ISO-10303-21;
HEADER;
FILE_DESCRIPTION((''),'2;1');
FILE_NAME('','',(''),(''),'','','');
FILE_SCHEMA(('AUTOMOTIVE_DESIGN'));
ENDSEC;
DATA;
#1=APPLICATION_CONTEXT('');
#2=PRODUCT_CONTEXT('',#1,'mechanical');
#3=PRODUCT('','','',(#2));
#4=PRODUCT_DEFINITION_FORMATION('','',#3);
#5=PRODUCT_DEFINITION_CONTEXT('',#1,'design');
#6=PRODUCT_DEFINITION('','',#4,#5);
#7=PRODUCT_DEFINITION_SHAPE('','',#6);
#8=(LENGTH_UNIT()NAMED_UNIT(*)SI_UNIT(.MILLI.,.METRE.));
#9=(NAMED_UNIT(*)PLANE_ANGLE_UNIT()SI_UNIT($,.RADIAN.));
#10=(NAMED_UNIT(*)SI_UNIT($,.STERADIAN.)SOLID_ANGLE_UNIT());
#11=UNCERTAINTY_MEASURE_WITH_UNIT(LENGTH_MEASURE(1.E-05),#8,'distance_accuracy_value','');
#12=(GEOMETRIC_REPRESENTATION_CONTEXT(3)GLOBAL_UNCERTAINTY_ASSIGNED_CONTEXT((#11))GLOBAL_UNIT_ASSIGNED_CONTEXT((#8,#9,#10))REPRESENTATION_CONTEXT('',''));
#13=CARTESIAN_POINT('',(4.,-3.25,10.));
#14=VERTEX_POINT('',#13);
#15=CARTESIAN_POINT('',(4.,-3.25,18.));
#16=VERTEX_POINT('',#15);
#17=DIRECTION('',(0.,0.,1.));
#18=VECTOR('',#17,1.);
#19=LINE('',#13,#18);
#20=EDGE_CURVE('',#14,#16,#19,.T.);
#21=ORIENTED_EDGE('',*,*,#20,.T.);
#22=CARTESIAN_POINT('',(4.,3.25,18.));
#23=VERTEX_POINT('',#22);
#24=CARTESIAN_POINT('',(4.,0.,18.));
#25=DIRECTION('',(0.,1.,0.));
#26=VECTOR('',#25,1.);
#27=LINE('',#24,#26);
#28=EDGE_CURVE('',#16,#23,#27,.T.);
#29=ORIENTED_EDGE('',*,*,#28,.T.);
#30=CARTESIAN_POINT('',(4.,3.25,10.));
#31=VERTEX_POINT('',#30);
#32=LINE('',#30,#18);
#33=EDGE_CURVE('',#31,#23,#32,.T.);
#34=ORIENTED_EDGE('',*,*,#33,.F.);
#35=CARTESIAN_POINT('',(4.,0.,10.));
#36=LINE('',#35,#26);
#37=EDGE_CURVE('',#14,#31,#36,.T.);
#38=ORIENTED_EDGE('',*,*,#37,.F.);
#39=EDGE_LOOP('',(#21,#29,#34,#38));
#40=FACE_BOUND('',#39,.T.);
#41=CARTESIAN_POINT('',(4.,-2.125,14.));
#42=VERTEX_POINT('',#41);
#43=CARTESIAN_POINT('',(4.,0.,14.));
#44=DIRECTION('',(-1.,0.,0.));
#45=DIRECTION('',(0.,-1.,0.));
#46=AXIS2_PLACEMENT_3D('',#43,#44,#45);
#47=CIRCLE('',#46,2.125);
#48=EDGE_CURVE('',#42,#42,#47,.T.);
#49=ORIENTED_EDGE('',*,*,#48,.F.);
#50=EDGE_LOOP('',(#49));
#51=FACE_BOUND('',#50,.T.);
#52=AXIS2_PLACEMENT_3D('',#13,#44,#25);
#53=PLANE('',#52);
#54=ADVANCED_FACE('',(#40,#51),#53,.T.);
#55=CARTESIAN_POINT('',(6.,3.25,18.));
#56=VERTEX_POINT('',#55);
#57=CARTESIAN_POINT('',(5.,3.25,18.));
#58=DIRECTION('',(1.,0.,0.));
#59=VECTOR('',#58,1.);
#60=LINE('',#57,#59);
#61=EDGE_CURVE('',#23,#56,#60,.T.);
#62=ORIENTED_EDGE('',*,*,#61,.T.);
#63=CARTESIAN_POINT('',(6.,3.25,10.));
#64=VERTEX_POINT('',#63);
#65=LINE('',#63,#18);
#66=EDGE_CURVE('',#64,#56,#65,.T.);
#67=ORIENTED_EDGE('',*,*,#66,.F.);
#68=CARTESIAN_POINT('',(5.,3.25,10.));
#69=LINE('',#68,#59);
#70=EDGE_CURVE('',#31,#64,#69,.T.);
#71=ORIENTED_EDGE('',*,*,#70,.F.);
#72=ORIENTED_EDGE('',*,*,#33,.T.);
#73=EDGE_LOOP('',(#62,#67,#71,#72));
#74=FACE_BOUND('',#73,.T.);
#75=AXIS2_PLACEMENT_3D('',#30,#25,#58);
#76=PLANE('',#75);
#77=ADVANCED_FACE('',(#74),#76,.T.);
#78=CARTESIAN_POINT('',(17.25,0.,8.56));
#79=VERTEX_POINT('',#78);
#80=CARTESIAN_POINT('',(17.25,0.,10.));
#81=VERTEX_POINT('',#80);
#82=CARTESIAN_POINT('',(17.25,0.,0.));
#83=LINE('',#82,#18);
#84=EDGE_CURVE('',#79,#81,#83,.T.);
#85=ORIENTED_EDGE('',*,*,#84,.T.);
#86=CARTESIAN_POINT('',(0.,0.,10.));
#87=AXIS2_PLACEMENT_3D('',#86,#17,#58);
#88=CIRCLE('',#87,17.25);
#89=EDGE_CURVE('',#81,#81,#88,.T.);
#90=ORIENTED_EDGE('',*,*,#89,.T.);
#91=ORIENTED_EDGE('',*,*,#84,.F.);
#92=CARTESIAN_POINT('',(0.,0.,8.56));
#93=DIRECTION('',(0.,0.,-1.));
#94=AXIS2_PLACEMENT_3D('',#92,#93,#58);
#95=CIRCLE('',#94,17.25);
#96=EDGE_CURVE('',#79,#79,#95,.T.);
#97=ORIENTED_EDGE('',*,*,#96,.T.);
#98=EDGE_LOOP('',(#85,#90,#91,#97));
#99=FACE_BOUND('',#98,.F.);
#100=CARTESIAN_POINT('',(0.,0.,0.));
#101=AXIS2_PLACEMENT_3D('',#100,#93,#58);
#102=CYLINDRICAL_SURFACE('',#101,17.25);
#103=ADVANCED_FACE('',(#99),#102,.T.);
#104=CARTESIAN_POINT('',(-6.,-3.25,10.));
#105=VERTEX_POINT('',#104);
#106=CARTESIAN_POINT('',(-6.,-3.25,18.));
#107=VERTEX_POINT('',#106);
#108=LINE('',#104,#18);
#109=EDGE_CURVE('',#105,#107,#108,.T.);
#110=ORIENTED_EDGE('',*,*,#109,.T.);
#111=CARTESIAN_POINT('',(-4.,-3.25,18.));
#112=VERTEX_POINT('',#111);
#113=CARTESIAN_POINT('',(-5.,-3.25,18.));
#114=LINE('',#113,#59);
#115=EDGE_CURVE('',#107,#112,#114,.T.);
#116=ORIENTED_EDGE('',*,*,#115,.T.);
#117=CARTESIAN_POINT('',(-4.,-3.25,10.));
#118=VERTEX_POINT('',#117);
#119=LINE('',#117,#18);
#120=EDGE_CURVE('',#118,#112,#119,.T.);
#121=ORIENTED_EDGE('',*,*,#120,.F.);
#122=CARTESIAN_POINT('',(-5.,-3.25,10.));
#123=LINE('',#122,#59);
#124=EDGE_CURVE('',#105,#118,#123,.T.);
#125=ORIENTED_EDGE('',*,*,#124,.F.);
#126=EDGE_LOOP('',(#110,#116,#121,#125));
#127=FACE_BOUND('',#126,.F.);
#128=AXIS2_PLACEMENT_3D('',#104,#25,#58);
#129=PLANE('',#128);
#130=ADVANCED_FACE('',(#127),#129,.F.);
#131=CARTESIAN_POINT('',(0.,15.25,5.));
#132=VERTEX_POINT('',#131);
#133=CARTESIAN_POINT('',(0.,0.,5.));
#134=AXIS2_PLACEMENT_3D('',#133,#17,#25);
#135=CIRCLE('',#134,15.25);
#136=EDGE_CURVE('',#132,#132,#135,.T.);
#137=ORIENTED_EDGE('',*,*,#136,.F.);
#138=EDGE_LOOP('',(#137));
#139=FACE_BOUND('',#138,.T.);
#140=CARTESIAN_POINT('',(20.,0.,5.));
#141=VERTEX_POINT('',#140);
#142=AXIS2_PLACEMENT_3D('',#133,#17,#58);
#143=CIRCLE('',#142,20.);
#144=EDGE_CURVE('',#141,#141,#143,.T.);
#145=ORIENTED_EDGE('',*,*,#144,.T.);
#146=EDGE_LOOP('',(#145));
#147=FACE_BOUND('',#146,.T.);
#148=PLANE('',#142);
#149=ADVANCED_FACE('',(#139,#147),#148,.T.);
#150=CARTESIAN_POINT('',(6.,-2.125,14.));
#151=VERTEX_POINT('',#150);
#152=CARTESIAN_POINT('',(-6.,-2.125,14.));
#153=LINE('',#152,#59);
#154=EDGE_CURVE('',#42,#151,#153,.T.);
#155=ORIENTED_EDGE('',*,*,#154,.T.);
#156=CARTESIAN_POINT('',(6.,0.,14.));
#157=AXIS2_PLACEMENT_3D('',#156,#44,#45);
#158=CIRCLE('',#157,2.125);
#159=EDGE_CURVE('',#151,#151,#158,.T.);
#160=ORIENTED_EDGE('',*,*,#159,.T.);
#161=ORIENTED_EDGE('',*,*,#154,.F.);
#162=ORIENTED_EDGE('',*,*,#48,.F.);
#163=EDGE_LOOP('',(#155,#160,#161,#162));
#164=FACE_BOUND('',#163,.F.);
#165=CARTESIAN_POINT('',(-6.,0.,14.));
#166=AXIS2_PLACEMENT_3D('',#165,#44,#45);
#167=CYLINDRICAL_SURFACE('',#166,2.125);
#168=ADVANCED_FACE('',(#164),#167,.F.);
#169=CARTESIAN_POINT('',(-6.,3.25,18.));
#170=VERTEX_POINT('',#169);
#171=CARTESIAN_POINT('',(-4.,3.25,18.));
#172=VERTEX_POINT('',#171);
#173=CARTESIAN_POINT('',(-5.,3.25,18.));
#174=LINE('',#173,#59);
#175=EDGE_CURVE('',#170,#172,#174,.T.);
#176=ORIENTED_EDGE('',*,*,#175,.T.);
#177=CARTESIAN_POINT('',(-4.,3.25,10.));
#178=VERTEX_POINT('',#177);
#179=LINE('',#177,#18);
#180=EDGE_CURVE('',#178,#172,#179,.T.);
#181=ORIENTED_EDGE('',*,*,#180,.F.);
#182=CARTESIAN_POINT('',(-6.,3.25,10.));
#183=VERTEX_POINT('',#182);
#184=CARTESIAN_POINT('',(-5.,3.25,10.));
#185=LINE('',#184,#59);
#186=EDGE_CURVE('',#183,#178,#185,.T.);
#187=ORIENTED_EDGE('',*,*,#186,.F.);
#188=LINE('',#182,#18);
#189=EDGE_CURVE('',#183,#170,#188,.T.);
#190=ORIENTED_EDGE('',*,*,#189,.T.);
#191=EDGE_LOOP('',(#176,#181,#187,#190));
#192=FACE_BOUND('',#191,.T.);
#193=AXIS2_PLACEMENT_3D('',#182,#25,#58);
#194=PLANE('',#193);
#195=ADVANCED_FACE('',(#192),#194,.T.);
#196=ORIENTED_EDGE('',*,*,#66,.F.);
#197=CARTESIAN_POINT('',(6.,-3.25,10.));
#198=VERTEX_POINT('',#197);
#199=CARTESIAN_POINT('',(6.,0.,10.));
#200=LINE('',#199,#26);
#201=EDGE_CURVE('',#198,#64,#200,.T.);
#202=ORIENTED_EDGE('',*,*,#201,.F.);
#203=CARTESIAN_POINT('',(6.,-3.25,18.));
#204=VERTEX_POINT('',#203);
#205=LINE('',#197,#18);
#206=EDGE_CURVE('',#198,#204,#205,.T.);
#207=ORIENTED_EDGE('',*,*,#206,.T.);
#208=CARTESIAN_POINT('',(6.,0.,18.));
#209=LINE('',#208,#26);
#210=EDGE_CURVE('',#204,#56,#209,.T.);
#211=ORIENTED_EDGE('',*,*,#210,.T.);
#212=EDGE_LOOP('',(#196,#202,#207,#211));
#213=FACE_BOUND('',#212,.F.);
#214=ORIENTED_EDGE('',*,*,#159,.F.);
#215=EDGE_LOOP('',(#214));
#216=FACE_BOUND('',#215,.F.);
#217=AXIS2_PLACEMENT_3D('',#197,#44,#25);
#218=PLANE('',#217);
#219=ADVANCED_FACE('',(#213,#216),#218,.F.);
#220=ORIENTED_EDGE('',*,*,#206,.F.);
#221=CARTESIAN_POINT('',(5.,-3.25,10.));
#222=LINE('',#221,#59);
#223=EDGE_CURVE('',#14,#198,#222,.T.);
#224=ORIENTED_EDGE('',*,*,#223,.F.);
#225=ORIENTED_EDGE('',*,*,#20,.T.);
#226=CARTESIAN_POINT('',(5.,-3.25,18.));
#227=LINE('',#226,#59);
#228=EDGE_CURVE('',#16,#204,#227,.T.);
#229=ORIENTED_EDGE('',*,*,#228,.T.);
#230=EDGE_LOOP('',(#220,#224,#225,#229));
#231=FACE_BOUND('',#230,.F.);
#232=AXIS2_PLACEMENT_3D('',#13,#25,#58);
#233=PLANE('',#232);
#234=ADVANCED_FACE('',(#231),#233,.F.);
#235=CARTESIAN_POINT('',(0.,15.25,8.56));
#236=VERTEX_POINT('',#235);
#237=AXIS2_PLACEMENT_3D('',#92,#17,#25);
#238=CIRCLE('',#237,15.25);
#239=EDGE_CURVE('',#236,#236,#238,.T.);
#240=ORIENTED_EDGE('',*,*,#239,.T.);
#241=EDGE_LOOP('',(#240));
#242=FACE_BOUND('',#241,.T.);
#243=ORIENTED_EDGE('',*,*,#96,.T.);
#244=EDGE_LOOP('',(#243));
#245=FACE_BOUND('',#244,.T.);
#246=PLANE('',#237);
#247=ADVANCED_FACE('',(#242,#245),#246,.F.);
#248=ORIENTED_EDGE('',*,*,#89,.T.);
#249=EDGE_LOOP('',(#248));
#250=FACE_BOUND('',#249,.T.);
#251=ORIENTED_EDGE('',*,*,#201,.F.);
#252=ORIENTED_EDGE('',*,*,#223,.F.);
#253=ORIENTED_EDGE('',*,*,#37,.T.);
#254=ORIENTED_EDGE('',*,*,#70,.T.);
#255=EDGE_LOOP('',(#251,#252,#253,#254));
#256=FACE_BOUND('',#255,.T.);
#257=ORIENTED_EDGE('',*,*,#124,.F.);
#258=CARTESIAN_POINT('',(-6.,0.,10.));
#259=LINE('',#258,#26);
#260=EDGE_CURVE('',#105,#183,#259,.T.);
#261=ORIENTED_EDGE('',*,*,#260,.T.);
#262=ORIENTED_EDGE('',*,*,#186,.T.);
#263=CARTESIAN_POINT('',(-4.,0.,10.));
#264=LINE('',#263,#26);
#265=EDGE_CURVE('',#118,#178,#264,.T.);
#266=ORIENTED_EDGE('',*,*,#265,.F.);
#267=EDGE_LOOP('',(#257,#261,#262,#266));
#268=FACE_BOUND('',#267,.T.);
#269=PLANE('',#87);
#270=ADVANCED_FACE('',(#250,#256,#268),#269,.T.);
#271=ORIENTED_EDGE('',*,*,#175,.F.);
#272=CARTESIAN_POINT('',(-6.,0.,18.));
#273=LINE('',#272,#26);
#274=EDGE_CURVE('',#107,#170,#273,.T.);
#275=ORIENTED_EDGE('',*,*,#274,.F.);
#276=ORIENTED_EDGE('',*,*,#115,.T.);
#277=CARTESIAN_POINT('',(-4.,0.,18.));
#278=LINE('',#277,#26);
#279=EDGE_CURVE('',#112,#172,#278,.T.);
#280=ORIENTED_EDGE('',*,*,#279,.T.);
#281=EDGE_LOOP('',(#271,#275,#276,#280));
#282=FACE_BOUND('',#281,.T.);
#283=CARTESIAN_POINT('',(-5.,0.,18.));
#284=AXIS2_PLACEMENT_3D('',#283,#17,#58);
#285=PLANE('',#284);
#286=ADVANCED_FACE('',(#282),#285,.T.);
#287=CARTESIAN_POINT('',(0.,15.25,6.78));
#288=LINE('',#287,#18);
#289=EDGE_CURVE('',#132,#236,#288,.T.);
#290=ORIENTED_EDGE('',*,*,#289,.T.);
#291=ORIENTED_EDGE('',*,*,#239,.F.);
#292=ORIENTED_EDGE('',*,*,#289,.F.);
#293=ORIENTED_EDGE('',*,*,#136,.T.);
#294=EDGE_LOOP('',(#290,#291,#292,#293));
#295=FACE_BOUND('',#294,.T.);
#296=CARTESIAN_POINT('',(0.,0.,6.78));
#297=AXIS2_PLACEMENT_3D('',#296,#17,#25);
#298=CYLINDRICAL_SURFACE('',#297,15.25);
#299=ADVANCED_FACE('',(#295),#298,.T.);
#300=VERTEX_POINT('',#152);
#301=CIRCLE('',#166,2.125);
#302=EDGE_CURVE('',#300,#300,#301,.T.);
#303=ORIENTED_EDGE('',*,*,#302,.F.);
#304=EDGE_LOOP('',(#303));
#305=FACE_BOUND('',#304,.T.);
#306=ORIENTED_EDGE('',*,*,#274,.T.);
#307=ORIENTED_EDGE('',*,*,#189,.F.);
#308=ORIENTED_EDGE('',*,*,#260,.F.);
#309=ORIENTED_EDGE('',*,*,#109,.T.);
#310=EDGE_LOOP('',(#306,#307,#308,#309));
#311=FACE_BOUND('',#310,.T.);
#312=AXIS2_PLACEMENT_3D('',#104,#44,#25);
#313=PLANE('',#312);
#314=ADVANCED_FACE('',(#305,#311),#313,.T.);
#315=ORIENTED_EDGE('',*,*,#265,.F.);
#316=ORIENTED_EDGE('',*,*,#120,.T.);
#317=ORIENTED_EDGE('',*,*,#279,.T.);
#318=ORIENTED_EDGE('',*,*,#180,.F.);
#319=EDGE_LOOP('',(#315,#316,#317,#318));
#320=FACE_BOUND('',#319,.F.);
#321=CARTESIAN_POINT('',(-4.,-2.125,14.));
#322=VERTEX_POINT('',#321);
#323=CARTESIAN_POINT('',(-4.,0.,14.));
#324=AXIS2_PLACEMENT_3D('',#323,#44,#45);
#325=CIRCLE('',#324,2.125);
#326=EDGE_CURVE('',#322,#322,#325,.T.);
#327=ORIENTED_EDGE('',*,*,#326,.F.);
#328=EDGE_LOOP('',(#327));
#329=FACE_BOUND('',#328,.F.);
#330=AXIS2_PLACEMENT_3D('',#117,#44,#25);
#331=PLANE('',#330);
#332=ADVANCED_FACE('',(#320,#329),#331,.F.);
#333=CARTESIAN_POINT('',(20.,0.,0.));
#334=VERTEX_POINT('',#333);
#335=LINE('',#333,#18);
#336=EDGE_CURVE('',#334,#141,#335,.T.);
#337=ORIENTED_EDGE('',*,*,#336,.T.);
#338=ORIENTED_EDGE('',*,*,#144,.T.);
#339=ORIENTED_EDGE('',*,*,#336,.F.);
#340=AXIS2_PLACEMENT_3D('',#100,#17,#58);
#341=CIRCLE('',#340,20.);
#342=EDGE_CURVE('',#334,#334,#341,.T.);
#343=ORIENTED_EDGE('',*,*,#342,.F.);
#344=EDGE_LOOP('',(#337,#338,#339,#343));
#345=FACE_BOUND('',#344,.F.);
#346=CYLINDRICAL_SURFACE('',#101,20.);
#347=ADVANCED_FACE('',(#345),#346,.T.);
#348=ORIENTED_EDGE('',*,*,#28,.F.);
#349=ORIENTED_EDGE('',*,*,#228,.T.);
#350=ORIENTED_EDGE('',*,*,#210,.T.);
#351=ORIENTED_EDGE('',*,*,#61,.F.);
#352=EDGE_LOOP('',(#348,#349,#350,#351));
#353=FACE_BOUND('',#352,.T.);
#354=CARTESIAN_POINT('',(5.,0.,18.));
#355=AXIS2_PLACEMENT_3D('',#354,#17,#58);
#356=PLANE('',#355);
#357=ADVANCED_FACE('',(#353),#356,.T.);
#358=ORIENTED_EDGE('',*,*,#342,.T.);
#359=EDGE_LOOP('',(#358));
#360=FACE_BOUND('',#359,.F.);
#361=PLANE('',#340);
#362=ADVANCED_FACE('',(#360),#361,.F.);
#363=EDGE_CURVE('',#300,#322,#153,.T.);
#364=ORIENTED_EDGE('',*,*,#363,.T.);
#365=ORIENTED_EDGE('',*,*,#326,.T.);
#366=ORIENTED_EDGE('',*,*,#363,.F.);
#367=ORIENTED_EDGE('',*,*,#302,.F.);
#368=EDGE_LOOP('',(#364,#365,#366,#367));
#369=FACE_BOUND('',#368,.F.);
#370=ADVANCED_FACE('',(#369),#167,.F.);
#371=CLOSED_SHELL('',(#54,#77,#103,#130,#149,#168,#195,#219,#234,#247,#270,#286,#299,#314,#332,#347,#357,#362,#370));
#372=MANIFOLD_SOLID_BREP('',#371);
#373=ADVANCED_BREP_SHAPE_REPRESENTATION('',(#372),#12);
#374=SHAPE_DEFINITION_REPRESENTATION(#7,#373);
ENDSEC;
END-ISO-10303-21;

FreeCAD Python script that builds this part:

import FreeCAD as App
import Part
import Sketcher
from FreeCAD import Vector

doc = App.newDocument("Part")
body = doc.addObject("PartDesign::Body", "Body")

# Sketch on XY plane
sketch1 = body.newObject("Sketcher::SketchObject", "Sketch")
sketch1.AttachmentSupport = (doc.getObject("XY_Plane"), [""])
sketch1.MapMode = "FlatFace"
sketch1.addGeometry(Part.Circle(Vector(0, 0, 0), Vector(0, 0, 1), 20), False)
sketch1.addConstraint([
    Sketcher.Constraint("Coincident", 0, 3, -1, 1),
    Sketcher.Constraint("Diameter", 0, 40.0),
])
pad1 = body.newObject("PartDesign::Pad", "Pad")
pad1.Profile = sketch1
pad1.Length = 5

# Sketch on XY plane
sketch2 = body.newObject("Sketcher::SketchObject", "Sketch001")
sketch2.AttachmentSupport = (doc.getObject("XY_Plane"), [""])
sketch2.MapMode = "FlatFace"
sketch2.addGeometry(Part.Circle(Vector(0, 0, 0), Vector(0, 0, 1), 17.25), False)
sketch2.addConstraint([
    Sketcher.Constraint("Coincident", 0, 3, -1, 1),
    Sketcher.Constraint("Diameter", 0, 34.5),
])
pad2 = body.newObject("PartDesign::Pad", "Pad001")
pad2.Profile = sketch2
pad2.Length = 10

# Sketch on YZ plane
sketch3 = body.newObject("Sketcher::SketchObject", "Sketch002")
sketch3.AttachmentSupport = (doc.getObject("YZ_Plane"), [""])
sketch3.MapMode = "FlatFace"
sketch3.addGeometry([
    Part.LineSegment(Vector(15.25, 8.56, 0), Vector(15.25, 5, 0)),
    Part.LineSegment(Vector(15.25, 5, 0), Vector(17.25, 5, 0)),
    Part.LineSegment(Vector(17.25, 5, 0), Vector(17.25, 8.56, 0)),
    Part.LineSegment(Vector(17.25, 8.56, 0), Vector(15.25, 8.56, 0)),
], False)
sketch3.addConstraint([
    Sketcher.Constraint("Coincident", 0, 2, 1, 1),
    Sketcher.Constraint("Coincident", 1, 2, 2, 1),
    Sketcher.Constraint("Coincident", 2, 2, 3, 1),
    Sketcher.Constraint("Coincident", 3, 2, 0, 1),
    Sketcher.Constraint("Vertical", 0),
    Sketcher.Constraint("Horizontal", 1),
    Sketcher.Constraint("Vertical", 2),
    Sketcher.Constraint("Horizontal", 3),
    Sketcher.Constraint("DistanceX", 1, 1, 1, 2, 2.0),
    Sketcher.Constraint("DistanceY", -1, 1, 0, 2, 5.0),
    Sketcher.Constraint("DistanceY", 0, 2, 0, 1, 3.56),
    Sketcher.Constraint("DistanceX", -1, 1, 0, 2, 15.25),
])
groove = body.newObject("PartDesign::Groove", "Groove")
groove.Profile = sketch3
groove.ReferenceAxis = (sketch3, ["V_Axis"])
groove.Angle = 360

# Sketch on XY plane
sketch4 = body.newObject("Sketcher::SketchObject", "Sketch003")
sketch4.AttachmentSupport = (doc.getObject("XY_Plane"), [""])
sketch4.MapMode = "FlatFace"
sketch4.AttachmentOffset = App.Placement(Vector(0, 0, 10), App.Rotation())
sketch4.addGeometry([
    Part.LineSegment(Vector(4, 3.25, 0), Vector(4, -3.25, 0)),  # 0
    Part.LineSegment(Vector(4, -3.25, 0), Vector(6, -3.25, 0)),  # 1
    Part.LineSegment(Vector(6, -3.25, 0), Vector(6, 3.25, 0)),  # 2
    Part.LineSegment(Vector(6, 3.25, 0), Vector(4, 3.25, 0)),  # 3
    Part.LineSegment(Vector(-6, 3.25, 0), Vector(-6, -3.25, 0)),  # 4
    Part.LineSegment(Vector(-6, -3.25, 0), Vector(-4, -3.25, 0)),  # 5
    Part.LineSegment(Vector(-4, -3.25, 0), Vector(-4, 3.25, 0)),  # 6
    Part.LineSegment(Vector(-4, 3.25, 0), Vector(-6, 3.25, 0)),  # 7
], False)
sketch4.addConstraint([
    Sketcher.Constraint("Coincident", 0, 2, 1, 1),
    Sketcher.Constraint("Coincident", 1, 2, 2, 1),
    Sketcher.Constraint("Coincident", 2, 2, 3, 1),
    Sketcher.Constraint("Coincident", 3, 2, 0, 1),
    Sketcher.Constraint("Coincident", 4, 2, 5, 1),
    Sketcher.Constraint("Coincident", 5, 2, 6, 1),
    Sketcher.Constraint("Coincident", 6, 2, 7, 1),
    Sketcher.Constraint("Coincident", 7, 2, 4, 1),
    Sketcher.Constraint("Vertical", 0),
    Sketcher.Constraint("Horizontal", 1),
    Sketcher.Constraint("Vertical", 2),
    Sketcher.Constraint("Horizontal", 3),
    Sketcher.Constraint("Vertical", 4),
    Sketcher.Constraint("Horizontal", 5),
    Sketcher.Constraint("Vertical", 6),
    Sketcher.Constraint("Horizontal", 7),
    Sketcher.Constraint("Symmetric", 2, 2, 4, 2, -1, 1),
    Sketcher.Constraint("Symmetric", 0, 2, 6, 2, -1, 1),
    Sketcher.Constraint("Horizontal", 1, 2, 4, 2),
    Sketcher.Constraint("DistanceX", 1, 1, 1, 2, 2.0),
    Sketcher.Constraint("DistanceY", 0, 2, 0, 1, 6.5),
    Sketcher.Constraint("DistanceX", -1, 1, 0, 2, 4.0),
])
pad3 = body.newObject("PartDesign::Pad", "Pad002")
pad3.Profile = sketch4
pad3.Length = 8

# Sketch on YZ plane
sketch5 = body.newObject("Sketcher::SketchObject", "Sketch004")
sketch5.AttachmentSupport = (doc.getObject("YZ_Plane"), [""])
sketch5.MapMode = "FlatFace"
sketch5.AttachmentOffset = App.Placement(Vector(0, 0, -6), App.Rotation())
sketch5.addGeometry(Part.Circle(Vector(0, 14, 0), Vector(0, 0, 1), 2.125), False)
sketch5.addConstraint([
    Sketcher.Constraint("PointOnObject", 0, 3, -2),
    Sketcher.Constraint("Diameter", 0, 4.25),
    Sketcher.Constraint("DistanceY", -1, 1, 0, 3, 14.0),
])
pocket1 = body.newObject("PartDesign::Pocket", "Pocket")
pocket1.Profile = sketch5
pocket1.Type = "ThroughAll"
pocket1.Reversed = True

doc.recompute()
